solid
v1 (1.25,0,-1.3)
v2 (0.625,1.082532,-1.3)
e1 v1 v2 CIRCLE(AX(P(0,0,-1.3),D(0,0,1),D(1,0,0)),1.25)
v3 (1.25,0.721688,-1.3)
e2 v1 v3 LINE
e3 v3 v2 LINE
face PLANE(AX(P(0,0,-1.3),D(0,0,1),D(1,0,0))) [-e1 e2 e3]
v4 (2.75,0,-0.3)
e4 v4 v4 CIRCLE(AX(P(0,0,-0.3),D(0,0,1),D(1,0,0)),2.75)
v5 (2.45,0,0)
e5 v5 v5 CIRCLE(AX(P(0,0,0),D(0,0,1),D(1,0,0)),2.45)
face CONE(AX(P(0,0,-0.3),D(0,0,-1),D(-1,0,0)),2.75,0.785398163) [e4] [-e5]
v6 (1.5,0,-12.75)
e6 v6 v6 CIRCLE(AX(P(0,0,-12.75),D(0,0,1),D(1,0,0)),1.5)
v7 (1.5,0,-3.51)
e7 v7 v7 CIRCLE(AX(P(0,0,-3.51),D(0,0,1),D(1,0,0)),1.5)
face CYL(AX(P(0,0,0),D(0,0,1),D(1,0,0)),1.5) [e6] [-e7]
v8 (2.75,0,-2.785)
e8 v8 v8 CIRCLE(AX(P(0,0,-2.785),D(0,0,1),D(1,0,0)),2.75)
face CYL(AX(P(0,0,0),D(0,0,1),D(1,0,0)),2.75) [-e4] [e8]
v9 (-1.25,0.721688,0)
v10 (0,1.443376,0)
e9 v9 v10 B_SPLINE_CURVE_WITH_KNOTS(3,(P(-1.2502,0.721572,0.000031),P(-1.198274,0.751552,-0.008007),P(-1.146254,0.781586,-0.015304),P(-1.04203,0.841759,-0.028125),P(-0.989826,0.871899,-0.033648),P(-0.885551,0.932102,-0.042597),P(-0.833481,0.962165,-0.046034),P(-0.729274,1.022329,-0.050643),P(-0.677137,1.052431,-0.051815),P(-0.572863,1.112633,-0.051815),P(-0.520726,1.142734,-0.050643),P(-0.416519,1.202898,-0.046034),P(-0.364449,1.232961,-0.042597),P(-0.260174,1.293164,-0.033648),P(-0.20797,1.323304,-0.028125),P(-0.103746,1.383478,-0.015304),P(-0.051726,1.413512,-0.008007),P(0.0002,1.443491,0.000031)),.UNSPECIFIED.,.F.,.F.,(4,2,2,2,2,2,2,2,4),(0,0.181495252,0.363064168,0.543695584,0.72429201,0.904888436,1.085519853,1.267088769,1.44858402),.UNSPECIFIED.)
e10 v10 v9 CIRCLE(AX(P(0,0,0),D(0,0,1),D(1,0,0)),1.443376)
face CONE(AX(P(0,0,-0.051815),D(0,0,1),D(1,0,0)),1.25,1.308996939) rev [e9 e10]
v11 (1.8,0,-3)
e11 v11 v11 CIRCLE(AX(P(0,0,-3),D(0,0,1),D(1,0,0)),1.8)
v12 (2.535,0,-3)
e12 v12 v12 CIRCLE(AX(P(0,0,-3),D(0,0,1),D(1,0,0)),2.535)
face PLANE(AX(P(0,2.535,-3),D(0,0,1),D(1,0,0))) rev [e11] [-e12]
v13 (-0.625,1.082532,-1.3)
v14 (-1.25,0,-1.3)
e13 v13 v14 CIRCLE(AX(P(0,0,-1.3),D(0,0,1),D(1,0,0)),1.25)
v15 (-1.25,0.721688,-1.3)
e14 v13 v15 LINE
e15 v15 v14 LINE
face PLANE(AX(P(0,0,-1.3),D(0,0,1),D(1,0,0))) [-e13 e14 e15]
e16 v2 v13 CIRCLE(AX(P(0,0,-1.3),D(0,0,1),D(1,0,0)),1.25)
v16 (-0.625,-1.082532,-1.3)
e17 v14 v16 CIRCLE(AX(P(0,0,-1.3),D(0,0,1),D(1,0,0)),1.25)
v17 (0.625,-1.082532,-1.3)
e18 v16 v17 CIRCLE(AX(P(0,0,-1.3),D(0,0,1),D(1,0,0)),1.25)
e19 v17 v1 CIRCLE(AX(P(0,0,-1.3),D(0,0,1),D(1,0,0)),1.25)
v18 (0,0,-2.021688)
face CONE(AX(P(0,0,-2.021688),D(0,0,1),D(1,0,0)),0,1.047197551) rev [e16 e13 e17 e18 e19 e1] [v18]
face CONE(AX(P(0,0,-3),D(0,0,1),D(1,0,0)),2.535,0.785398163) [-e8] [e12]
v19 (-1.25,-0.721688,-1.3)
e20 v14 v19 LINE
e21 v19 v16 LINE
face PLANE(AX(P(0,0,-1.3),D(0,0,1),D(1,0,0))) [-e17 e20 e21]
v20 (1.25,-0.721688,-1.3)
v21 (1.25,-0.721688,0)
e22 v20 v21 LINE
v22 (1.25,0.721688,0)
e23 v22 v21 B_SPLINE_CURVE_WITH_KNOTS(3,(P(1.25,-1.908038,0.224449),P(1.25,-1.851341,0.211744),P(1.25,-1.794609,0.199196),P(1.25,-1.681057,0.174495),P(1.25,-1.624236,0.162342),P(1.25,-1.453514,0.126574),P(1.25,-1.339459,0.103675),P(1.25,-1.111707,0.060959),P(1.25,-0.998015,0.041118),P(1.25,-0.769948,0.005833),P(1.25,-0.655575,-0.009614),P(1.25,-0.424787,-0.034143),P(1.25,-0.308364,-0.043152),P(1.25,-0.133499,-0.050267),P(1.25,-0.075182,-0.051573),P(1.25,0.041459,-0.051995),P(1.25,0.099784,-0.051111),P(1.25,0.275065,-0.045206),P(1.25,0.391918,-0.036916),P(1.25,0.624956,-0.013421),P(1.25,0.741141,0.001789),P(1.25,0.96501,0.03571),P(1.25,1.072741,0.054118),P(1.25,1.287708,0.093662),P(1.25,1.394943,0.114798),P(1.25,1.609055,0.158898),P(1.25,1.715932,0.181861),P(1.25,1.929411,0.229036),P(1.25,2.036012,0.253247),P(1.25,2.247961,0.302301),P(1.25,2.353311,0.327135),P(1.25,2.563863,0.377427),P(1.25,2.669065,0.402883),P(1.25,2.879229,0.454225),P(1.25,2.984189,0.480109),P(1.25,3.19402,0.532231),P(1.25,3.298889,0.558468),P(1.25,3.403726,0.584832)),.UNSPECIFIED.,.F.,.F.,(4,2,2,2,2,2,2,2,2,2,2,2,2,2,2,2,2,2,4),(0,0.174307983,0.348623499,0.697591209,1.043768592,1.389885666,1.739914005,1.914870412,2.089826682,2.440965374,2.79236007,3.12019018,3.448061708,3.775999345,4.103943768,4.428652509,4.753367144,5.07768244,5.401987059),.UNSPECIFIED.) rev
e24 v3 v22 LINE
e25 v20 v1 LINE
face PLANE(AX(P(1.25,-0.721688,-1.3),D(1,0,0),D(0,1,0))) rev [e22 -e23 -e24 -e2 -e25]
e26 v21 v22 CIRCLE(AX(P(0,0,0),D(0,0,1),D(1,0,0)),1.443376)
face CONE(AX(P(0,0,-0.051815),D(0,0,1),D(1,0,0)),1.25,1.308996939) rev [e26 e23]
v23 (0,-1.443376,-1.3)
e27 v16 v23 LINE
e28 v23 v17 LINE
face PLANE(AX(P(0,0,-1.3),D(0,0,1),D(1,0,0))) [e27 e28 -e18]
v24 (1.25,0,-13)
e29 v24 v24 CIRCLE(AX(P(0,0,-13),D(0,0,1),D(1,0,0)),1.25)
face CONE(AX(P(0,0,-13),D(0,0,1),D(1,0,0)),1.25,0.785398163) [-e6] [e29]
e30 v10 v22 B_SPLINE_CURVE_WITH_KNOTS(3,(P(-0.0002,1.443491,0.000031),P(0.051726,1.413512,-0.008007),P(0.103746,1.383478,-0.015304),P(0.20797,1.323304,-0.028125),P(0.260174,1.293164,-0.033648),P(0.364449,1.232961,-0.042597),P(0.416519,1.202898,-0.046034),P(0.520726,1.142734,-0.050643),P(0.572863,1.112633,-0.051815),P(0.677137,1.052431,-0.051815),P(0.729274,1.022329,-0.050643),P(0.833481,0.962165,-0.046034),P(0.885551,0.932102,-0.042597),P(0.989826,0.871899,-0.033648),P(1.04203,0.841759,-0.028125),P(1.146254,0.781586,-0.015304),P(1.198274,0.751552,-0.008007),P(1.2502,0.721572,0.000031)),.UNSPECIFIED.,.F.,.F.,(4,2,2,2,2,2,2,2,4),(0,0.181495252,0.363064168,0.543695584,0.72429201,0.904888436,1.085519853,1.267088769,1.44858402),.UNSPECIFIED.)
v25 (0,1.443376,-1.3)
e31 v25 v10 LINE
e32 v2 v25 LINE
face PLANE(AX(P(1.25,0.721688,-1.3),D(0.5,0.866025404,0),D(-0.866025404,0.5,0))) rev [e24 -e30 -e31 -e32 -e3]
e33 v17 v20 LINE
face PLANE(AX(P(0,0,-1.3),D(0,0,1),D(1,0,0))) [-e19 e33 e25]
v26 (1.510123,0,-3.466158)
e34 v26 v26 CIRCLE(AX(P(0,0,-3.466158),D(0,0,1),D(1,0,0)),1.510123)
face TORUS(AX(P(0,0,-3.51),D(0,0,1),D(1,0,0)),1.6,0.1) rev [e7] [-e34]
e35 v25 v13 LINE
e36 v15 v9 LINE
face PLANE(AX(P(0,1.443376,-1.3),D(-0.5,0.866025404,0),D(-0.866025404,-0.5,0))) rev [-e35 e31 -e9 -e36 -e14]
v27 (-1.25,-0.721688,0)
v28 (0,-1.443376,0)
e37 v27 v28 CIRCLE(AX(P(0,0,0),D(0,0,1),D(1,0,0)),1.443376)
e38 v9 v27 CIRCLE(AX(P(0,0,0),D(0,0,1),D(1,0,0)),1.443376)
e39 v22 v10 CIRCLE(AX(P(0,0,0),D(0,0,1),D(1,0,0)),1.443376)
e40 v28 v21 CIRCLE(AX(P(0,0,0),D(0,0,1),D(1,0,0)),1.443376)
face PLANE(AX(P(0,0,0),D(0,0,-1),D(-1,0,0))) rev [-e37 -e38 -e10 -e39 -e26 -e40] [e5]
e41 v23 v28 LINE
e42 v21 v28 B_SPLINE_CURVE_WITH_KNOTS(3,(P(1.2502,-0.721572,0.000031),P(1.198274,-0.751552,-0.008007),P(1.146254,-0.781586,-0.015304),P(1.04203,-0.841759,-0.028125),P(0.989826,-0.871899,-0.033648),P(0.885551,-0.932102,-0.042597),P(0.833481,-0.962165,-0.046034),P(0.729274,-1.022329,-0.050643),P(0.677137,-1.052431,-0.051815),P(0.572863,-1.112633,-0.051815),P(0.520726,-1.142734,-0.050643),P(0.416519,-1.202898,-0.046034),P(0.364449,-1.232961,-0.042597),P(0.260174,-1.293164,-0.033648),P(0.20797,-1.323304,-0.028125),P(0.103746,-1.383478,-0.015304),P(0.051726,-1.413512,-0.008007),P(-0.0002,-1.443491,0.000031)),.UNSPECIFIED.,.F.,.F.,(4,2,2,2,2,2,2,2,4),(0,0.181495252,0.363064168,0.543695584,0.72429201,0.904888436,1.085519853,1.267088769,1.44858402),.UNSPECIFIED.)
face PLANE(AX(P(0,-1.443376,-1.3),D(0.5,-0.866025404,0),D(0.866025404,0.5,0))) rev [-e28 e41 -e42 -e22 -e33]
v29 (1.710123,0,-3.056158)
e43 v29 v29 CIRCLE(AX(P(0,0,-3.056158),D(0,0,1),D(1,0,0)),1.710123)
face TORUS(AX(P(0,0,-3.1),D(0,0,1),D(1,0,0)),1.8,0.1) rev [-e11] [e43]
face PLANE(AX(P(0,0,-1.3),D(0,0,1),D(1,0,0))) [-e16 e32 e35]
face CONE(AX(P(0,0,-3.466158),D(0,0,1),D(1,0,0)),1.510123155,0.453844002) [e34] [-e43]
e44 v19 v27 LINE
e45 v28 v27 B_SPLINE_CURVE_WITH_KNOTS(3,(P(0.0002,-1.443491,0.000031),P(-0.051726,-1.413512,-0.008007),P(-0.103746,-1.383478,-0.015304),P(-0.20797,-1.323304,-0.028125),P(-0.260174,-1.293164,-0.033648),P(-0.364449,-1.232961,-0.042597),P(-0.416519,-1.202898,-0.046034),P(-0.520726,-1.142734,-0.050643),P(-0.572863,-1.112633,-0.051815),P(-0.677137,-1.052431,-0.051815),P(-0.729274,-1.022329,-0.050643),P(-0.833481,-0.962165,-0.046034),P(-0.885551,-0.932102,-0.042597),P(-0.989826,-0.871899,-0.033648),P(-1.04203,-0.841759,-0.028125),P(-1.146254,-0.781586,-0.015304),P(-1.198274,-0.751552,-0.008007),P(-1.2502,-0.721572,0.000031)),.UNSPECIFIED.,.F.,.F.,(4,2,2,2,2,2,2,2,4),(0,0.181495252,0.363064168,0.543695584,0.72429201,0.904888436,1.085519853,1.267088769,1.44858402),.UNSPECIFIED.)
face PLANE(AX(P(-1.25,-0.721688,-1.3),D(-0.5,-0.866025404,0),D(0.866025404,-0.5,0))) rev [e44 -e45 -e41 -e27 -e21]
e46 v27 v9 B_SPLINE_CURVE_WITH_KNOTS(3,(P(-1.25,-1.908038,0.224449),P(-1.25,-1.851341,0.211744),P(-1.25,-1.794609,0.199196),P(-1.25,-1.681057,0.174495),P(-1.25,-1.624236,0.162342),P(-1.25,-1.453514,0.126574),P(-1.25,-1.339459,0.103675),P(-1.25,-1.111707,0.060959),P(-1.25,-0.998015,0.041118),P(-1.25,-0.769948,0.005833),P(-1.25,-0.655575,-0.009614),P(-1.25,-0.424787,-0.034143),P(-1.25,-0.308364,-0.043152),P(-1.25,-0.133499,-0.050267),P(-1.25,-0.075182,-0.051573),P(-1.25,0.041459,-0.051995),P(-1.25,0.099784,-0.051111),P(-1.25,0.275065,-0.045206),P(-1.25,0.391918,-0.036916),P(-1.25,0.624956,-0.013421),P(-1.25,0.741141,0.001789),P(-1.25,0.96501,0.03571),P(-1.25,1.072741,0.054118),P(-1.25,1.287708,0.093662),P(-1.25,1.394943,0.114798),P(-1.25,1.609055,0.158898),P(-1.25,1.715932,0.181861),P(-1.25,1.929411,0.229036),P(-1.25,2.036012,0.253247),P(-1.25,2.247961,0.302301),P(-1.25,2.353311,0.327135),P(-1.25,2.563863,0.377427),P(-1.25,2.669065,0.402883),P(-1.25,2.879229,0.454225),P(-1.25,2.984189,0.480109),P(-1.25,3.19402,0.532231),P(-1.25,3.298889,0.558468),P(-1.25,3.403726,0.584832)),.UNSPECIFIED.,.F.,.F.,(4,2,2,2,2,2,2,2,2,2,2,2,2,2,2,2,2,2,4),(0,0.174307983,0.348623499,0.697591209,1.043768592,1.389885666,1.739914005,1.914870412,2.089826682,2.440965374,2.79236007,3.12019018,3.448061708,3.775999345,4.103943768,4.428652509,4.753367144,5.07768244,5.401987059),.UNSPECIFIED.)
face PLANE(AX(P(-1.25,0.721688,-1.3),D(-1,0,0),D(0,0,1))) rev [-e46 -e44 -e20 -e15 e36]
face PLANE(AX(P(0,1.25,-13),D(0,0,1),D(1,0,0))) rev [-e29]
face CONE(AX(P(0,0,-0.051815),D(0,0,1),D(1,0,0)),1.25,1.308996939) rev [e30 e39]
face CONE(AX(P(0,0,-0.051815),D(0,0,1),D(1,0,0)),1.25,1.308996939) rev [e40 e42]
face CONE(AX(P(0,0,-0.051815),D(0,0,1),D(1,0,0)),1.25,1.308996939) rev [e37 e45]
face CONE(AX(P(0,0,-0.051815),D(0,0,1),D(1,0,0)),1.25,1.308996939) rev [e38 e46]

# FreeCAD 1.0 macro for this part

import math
import FreeCAD as App
import Part
import Sketcher
Q = App.Units.Quantity


def add_polygon(sketch, points):
    """Adds a closed chain of lines whose ends are joined by coincident constraints."""
    first, n = sketch.GeometryCount, len(points)
    for a, b in zip(points, points[1:] + points[:1]):
        sketch.addGeometry(Part.LineSegment(App.Vector(*a, 0), App.Vector(*b, 0)), False)
    for i in range(n):
        sketch.addConstraint(Sketcher.Constraint("Coincident", first + i, 2, first + (i + 1) % n, 1))

doc = App.newDocument("Part")
body = doc.addObject("PartDesign::Body", "Body")

sketch1 = doc.addObject("Sketcher::SketchObject", "Sketch")
body.addObject(sketch1)
sketch1.AttachmentSupport = (doc.YZ_Plane, [""])
sketch1.MapMode = "FlatFace"
sketch1.addGeometry([
    Part.LineSegment(App.Vector(2.45, 0, 0), App.Vector(0, 0, 0)),
    Part.LineSegment(App.Vector(0, 0, 0), App.Vector(0, -13, 0)),
    Part.LineSegment(App.Vector(0, -13, 0), App.Vector(1.25, -13, 0)),
    Part.LineSegment(App.Vector(1.25, -13, 0), App.Vector(1.5, -12.75, 0)),
    Part.LineSegment(App.Vector(1.5, -12.75, 0), App.Vector(1.5, -3.51, 0)),
    Part.ArcOfCircle(Part.Circle(App.Vector(1.6, -3.51, 0), App.Vector(0, 0, 1), 0.1), math.radians(154), math.radians(180)),
    Part.LineSegment(App.Vector(1.51, -3.466, 0), App.Vector(1.71, -3.056, 0)),
    Part.ArcOfCircle(Part.Circle(App.Vector(1.8, -3.1, 0), App.Vector(0, 0, 1), 0.1), math.radians(90), math.radians(154)),
    Part.LineSegment(App.Vector(1.8, -3, 0), App.Vector(2.535, -3, 0)),
    Part.LineSegment(App.Vector(2.535, -3, 0), App.Vector(2.75, -2.785, 0)),
    Part.LineSegment(App.Vector(2.75, -2.785, 0), App.Vector(2.75, -0.3, 0)),
    Part.LineSegment(App.Vector(2.75, -0.3, 0), App.Vector(2.45, 0, 0)),
], False)
sketch1.addConstraint([
    Sketcher.Constraint("Coincident", 0, 2, 1, 1),
    Sketcher.Constraint("Coincident", 1, 2, 2, 1),
    Sketcher.Constraint("Coincident", 2, 2, 3, 1),
    Sketcher.Constraint("Coincident", 3, 2, 4, 1),
    Sketcher.Constraint("Tangent", 4, 2, 5, 2),
    Sketcher.Constraint("Tangent", 5, 1, 6, 1),
    Sketcher.Constraint("Tangent", 6, 2, 7, 2),
    Sketcher.Constraint("Tangent", 7, 1, 8, 1),
    Sketcher.Constraint("Coincident", 8, 2, 9, 1),
    Sketcher.Constraint("Coincident", 9, 2, 10, 1),
    Sketcher.Constraint("Coincident", 10, 2, 11, 1),
    Sketcher.Constraint("Coincident", 11, 2, 0, 1),
    Sketcher.Constraint("Horizontal", 0),
    Sketcher.Constraint("Vertical", 1),
    Sketcher.Constraint("Horizontal", 2),
    Sketcher.Constraint("Vertical", 4),
    Sketcher.Constraint("Horizontal", 8),
    Sketcher.Constraint("Vertical", 10),
    Sketcher.Constraint("Coincident", 0, 2, -1, 1),
    Sketcher.Constraint("Equal", 5, 7),
    Sketcher.Constraint("Parallel", 3, 9),
    Sketcher.Constraint("Perpendicular", 9, 11),
    Sketcher.Constraint("Radius", 5, 0.1),
    Sketcher.Constraint("DistanceY", 1, 2, 1, 1, 13.0),
    Sketcher.Constraint("Angle", 3, Q("45 deg")),
    Sketcher.Constraint("DistanceY", 7, 1, -1, 1, 3.0),
    Sketcher.Constraint("DistanceX", 0, 2, 0, 1, 2.45),
    Sketcher.Constraint("DistanceX", 2, 1, 2, 2, 1.25),
    Sketcher.Constraint("DistanceY", 4, 1, 4, 2, 9.24),
    Sketcher.Constraint("DistanceX", -1, 1, 5, 3, 1.6),
    Sketcher.Constraint("DistanceX", -1, 1, 7, 3, 1.8),
    Sketcher.Constraint("DistanceY", 10, 2, -1, 1, 0.3),
    Sketcher.Constraint("DistanceX", 8, 1, 8, 2, 0.735),
])
revolution = doc.addObject("PartDesign::Revolution", "Revolution")
body.addObject(revolution)
revolution.Profile = sketch1
revolution.ReferenceAxis = (sketch1, ["V_Axis"])
revolution.Angle = 360

sketch2 = doc.addObject("Sketcher::SketchObject", "Sketch001")
body.addObject(sketch2)
sketch2.AttachmentSupport = (doc.XY_Plane, [""])
sketch2.MapMode = "FlatFace"
add_polygon(sketch2, [(0, 1.4), (-1.2, 0.7), (-1.2, -0.7), (0, -1.4), (1.2, -0.7), (1.2, 0.7)])
sketch2.addConstraint([
    Sketcher.Constraint("Vertical", 1),
    Sketcher.Constraint("Vertical", 4),
    Sketcher.Constraint("Symmetric", 0, 2, 3, 2, -1, 1),
    Sketcher.Constraint("Symmetric", 2, 2, 5, 2, -1, 1),
    Sketcher.Constraint("PointOnObject", 2, 2, -2),
    Sketcher.Constraint("Parallel", 2, 5),
    Sketcher.Constraint("Horizontal", 1, 2, 3, 2),
    Sketcher.Constraint("Angle", 0, Q("-150 deg")),
    Sketcher.Constraint("DistanceX", 1, 2, 3, 2, 2.5),
    Sketcher.Constraint("DistanceY", 1, 2, 1, 1, 1.443376),
])
pocket1 = doc.addObject("PartDesign::Pocket", "Pocket")
body.addObject(pocket1)
pocket1.Profile = sketch2
pocket1.Length = 1.3

sketch3 = doc.addObject("Sketcher::SketchObject", "Sketch002")
body.addObject(sketch3)
sketch3.AttachmentSupport = (doc.YZ_Plane, [""])
sketch3.MapMode = "FlatFace"
add_polygon(sketch3, [(1.2, -1.3), (0, -1.3), (0, -2)])
sketch3.addConstraint([
    Sketcher.Constraint("Horizontal", 0),
    Sketcher.Constraint("Vertical", 1),
    Sketcher.Constraint("PointOnObject", 0, 2, -2),
    Sketcher.Constraint("Angle", 2, Q("30 deg")),
    Sketcher.Constraint("DistanceX", 0, 2, 0, 1, 1.25),
    Sketcher.Constraint("DistanceY", 0, 2, -1, 1, 1.3),
])
groove = doc.addObject("PartDesign::Groove", "Groove")
body.addObject(groove)
groove.Profile = sketch3
groove.ReferenceAxis = (sketch3, ["V_Axis"])
groove.Angle = 360

sketch4 = doc.addObject("Sketcher::SketchObject", "Sketch003")
body.addObject(sketch4)
sketch4.AttachmentSupport = (doc.YZ_Plane, [""])
sketch4.MapMode = "FlatFace"
add_polygon(sketch4, [(1.44, 0), (1.25, 0), (1.25, -0.05)])
sketch4.addConstraint([
    Sketcher.Constraint("Horizontal", 0),
    Sketcher.Constraint("Vertical", 1),
    Sketcher.Constraint("PointOnObject", 0, 2, -1),
    Sketcher.Constraint("Angle", 2, Q("15 deg")),
    Sketcher.Constraint("DistanceX", -1, 1, 0, 2, 1.25),
    Sketcher.Constraint("DistanceX", 0, 2, 0, 1, 0.193376),
])
groove2 = doc.addObject("PartDesign::Groove", "Groove001")
body.addObject(groove2)
groove2.Profile = sketch4
groove2.ReferenceAxis = (sketch4, ["V_Axis"])
groove2.Angle = 360

doc.recompute()
